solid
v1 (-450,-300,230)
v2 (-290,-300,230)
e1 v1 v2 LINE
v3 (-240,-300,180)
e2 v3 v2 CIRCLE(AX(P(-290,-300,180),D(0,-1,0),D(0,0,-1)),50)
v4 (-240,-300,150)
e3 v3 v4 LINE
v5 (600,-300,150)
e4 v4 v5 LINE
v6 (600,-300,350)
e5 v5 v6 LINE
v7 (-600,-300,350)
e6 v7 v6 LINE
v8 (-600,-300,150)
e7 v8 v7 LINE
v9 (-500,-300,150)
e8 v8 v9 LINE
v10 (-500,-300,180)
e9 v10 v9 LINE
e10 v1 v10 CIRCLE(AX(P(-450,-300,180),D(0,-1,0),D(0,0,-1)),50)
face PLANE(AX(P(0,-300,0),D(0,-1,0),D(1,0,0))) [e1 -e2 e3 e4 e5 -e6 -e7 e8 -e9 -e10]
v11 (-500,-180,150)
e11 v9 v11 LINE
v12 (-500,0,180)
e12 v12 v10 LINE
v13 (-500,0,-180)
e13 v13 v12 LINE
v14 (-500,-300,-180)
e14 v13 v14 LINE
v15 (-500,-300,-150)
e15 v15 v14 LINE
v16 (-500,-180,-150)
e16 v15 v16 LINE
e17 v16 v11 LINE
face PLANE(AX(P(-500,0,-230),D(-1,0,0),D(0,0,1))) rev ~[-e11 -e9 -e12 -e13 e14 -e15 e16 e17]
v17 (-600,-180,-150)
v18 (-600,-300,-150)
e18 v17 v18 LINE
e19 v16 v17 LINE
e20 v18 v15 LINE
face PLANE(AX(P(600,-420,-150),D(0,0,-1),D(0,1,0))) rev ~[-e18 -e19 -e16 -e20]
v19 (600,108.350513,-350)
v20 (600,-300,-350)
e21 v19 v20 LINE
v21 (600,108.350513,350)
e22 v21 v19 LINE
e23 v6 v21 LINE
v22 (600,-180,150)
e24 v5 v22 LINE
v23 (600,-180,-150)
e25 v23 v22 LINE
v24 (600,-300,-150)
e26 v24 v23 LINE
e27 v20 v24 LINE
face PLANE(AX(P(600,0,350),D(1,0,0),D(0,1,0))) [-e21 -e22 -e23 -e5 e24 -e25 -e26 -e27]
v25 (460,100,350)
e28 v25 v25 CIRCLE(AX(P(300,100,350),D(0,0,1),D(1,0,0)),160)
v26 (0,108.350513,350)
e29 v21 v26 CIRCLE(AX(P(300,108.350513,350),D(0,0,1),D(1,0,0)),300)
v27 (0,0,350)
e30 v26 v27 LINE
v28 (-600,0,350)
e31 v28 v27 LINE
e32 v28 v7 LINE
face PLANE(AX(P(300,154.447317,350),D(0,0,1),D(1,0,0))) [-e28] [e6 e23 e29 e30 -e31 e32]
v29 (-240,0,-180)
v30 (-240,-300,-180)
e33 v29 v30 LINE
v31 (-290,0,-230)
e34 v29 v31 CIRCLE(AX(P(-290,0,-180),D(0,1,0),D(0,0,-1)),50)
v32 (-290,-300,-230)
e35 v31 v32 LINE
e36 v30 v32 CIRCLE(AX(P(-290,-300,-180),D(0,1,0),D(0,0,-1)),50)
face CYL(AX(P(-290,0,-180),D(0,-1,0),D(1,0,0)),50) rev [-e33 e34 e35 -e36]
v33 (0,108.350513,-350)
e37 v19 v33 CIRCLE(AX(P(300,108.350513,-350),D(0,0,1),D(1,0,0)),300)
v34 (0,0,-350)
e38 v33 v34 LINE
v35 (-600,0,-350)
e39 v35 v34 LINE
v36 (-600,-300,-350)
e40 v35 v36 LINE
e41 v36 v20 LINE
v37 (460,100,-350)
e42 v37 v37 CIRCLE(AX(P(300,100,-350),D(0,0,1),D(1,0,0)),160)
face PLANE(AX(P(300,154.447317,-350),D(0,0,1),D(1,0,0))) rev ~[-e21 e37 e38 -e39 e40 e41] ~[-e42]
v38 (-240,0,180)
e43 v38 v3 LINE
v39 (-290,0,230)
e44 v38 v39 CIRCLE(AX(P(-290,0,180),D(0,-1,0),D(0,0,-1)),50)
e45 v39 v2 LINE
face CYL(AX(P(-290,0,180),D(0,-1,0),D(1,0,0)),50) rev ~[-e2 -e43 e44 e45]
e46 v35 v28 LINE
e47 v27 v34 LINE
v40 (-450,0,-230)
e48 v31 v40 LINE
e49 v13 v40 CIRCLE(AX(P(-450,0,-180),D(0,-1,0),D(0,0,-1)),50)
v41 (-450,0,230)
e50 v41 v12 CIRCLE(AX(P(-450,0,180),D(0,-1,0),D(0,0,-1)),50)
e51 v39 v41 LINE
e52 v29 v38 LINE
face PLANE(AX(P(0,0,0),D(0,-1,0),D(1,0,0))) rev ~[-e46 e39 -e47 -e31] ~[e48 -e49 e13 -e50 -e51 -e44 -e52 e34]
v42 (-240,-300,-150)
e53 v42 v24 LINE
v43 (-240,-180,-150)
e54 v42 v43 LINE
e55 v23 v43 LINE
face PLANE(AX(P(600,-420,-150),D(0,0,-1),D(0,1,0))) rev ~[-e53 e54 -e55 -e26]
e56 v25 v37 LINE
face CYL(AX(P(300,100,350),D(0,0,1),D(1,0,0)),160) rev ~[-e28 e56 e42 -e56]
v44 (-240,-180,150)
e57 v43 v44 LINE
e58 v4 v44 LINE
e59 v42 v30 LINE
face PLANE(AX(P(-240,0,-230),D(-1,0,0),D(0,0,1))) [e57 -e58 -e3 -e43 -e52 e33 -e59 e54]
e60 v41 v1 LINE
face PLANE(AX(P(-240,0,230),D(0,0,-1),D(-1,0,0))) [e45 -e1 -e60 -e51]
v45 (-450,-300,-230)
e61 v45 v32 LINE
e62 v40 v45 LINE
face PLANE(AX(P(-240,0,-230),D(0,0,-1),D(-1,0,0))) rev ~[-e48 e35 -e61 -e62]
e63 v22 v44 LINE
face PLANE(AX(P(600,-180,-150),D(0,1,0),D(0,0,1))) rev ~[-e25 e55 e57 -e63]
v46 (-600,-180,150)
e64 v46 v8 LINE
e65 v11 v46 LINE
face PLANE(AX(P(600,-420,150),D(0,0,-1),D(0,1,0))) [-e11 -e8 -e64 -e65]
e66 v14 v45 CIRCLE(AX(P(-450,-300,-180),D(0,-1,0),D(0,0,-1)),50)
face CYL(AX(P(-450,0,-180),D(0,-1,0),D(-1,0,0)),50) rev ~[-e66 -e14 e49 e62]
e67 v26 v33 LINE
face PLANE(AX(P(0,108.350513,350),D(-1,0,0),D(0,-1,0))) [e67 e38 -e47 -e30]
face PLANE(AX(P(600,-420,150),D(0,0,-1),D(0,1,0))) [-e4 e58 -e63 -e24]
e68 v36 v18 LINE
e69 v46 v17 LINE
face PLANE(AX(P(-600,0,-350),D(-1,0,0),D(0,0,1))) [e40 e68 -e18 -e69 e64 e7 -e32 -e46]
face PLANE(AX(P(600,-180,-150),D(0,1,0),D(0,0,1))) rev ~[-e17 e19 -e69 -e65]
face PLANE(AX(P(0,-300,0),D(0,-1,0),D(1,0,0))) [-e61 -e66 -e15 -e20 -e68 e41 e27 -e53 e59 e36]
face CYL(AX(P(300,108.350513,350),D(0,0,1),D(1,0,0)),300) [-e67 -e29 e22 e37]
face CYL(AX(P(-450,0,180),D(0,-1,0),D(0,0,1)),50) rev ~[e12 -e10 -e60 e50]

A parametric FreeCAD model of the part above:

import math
import FreeCAD as App
import Part
import Sketcher

V = App.Vector


def edges_at(feature, points):
    """Names of the edges that pass closest to the given points."""
    edges = feature.Shape.Edges
    near = lambda p: min(range(len(edges)), key=lambda i: edges[i].distToShape(Part.Vertex(*p))[0])
    return sorted({f"Edge{near(p) + 1}" for p in points})


def add_polygon(sketch, points):
    """Adds a closed chain of lines whose ends are joined by coincident constraints."""
    first, n = sketch.GeometryCount, len(points)
    for a, b in zip(points, points[1:] + points[:1]):
        sketch.addGeometry(Part.LineSegment(App.Vector(*a, 0), App.Vector(*b, 0)), False)
    for i in range(n):
        sketch.addConstraint(Sketcher.Constraint("Coincident", first + i, 2, first + (i + 1) % n, 1))

doc = App.newDocument("Part")
body = doc.addObject("PartDesign::Body", "Body")

sketch1 = body.newObject("Sketcher::SketchObject", "Sketch")
sketch1.AttachmentSupport = (doc.getObject("XZ_Plane"), [""])
sketch1.MapMode = "FlatFace"
add_polygon(sketch1, [(-600, 350), (-600, -350), (600, -350), (600, 350)])
sketch1.addConstraint(Sketcher.Constraint("Vertical", 0))
sketch1.addConstraint(Sketcher.Constraint("Horizontal", 1))
sketch1.addConstraint(Sketcher.Constraint("Vertical", 2))
sketch1.addConstraint(Sketcher.Constraint("Horizontal", 3))
sketch1.addConstraint(Sketcher.Constraint("Symmetric", 0, 2, 2, 2, -1, 1))
sketch1.addConstraint(Sketcher.Constraint("DistanceX", 1, 1, 1, 2, 1200.0))
sketch1.addConstraint(Sketcher.Constraint("DistanceY", 0, 2, 0, 1, 700.0))
pad1 = body.newObject("PartDesign::Pad", "Pad")
pad1.Profile = sketch1
pad1.Length = 300

sketch2 = body.newObject("Sketcher::SketchObject", "Sketch001")
sketch2.AttachmentSupport = (doc.getObject("XY_Plane"), [""])
sketch2.MapMode = "FlatFace"
sketch2.AttachmentOffset = App.Placement(V(0, 0, 350), App.Rotation())
sketch2.addGeometry(Part.LineSegment(V(0, 108, 0), V(0, 0, 0)), False)
sketch2.addGeometry(Part.LineSegment(V(0, 0, 0), V(600, 0, 0)), False)
sketch2.addGeometry(Part.LineSegment(V(600, 0, 0), V(600, 108, 0)), False)
sketch2.addGeometry(Part.ArcOfCircle(Part.Circle(V(300, 108, 0), V(0, 0, 1), 300), math.radians(0), math.radians(180)), False)
sketch2.addConstraint(Sketcher.Constraint("Coincident", 0, 2, 1, 1))
sketch2.addConstraint(Sketcher.Constraint("Coincident", 1, 2, 2, 1))
sketch2.addConstraint(Sketcher.Constraint("Tangent", 2, 2, 3, 1))
sketch2.addConstraint(Sketcher.Constraint("Tangent", 3, 2, 0, 1))
sketch2.addConstraint(Sketcher.Constraint("Vertical", 0))
sketch2.addConstraint(Sketcher.Constraint("Horizontal", 1))
sketch2.addConstraint(Sketcher.Constraint("Vertical", 2))
sketch2.addConstraint(Sketcher.Constraint("Coincident", 0, 2, -1, 1))
sketch2.addConstraint(Sketcher.Constraint("Radius", 3, 300.0))
sketch2.addConstraint(Sketcher.Constraint("DistanceY", 0, 2, 0, 1, 108.350513))
pad2 = body.newObject("PartDesign::Pad", "Pad001")
pad2.Profile = sketch2
pad2.Length = 700
pad2.Reversed = True

sketch3 = body.newObject("Sketcher::SketchObject", "Sketch002")
sketch3.AttachmentSupport = (doc.getObject("YZ_Plane"), [""])
sketch3.MapMode = "FlatFace"
sketch3.AttachmentOffset = App.Placement(V(0, 0, 600), App.Rotation())
add_polygon(sketch3, [(-420, 150), (-420, -150), (-180, -150), (-180, 150)])
sketch3.addConstraint(Sketcher.Constraint("Vertical", 0))
sketch3.addConstraint(Sketcher.Constraint("Horizontal", 1))
sketch3.addConstraint(Sketcher.Constraint("Vertical", 2))
sketch3.addConstraint(Sketcher.Constraint("Horizontal", 3))
sketch3.addConstraint(Sketcher.Constraint("DistanceX", 1, 1, 1, 2, 240.0))
sketch3.addConstraint(Sketcher.Constraint("DistanceY", 0, 2, 0, 1, 300.0))
sketch3.addConstraint(Sketcher.Constraint("DistanceX", 0, 2, -1, 1, 420.0))
sketch3.addConstraint(Sketcher.Constraint("DistanceY", 0, 2, -1, 1, 150.0))
pocket1 = body.newObject("PartDesign::Pocket", "Pocket")
pocket1.Profile = sketch3
pocket1.Type = "ThroughAll"

sketch4 = body.newObject("Sketcher::SketchObject", "Sketch003")
sketch4.AttachmentSupport = (doc.getObject("XZ_Plane"), [""])
sketch4.MapMode = "FlatFace"
add_polygon(sketch4, [(-240, 230), (-240, -230), (-500, -230), (-500, 230)])
sketch4.addConstraint(Sketcher.Constraint("Vertical", 0))
sketch4.addConstraint(Sketcher.Constraint("Horizontal", 1))
sketch4.addConstraint(Sketcher.Constraint("Vertical", 2))
sketch4.addConstraint(Sketcher.Constraint("Horizontal", 3))
sketch4.addConstraint(Sketcher.Constraint("DistanceX", 1, 2, 1, 1, 260.0))
sketch4.addConstraint(Sketcher.Constraint("DistanceY", 0, 2, 0, 1, 460.0))
sketch4.addConstraint(Sketcher.Constraint("DistanceX", 0, 2, -1, 1, 240.0))
sketch4.addConstraint(Sketcher.Constraint("DistanceY", 0, 2, -1, 1, 230.0))
pocket2 = body.newObject("PartDesign::Pocket", "Pocket001")
pocket2.Profile = sketch4
pocket2.Type = "ThroughAll"
pocket2.Reversed = True
doc.recompute()

fillet = body.newObject("PartDesign::Fillet", "Fillet")
fillet.Base = (pocket2, edges_at(pocket2, [
    (-240, -150, -230),
    (-240, -150, 230),
    (-500, -150, 230),
    (-500, -150, -230),
]))
fillet.Radius = 50

sketch5 = body.newObject("Sketcher::SketchObject", "Sketch004")
sketch5.AttachmentSupport = (doc.getObject("XY_Plane"), [""])
sketch5.MapMode = "FlatFace"
sketch5.AttachmentOffset = App.Placement(V(0, 0, 350), App.Rotation())
sketch5.addGeometry(Part.Circle(V(300, 100, 0), V(0, 0, 1), 160), False)
sketch5.addConstraint(Sketcher.Constraint("Diameter", 0, 320.0))
sketch5.addConstraint(Sketcher.Constraint("DistanceX", -1, 1, 0, 3, 300.0))
sketch5.addConstraint(Sketcher.Constraint("DistanceY", -1, 1, 0, 3, 100.0))
pocket3 = body.newObject("PartDesign::Pocket", "Pocket002")
pocket3.Profile = sketch5
pocket3.Type = "ThroughAll"

doc.recompute()
